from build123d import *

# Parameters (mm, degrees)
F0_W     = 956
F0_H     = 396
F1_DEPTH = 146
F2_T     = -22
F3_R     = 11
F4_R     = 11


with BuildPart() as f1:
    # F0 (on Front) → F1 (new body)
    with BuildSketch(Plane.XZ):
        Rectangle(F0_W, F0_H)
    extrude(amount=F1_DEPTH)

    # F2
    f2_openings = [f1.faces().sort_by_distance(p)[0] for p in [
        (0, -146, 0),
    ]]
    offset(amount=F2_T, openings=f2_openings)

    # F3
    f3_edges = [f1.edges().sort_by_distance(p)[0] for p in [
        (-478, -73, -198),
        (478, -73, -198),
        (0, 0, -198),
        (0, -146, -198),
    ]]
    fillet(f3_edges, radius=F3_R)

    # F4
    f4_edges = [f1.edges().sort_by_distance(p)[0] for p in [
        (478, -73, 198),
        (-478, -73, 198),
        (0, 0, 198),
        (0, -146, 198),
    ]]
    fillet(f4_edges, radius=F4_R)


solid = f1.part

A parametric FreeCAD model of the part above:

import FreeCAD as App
import Part
import Sketcher
Q = App.Units.Quantity


def edges_at(feature, points):
    """Names of the edges that pass closest to the given points."""
    edges = feature.Shape.Edges
    near = lambda p: min(range(len(edges)), key=lambda i: edges[i].distToShape(Part.Vertex(*p))[0])
    return sorted({f"Edge{near(p) + 1}" for p in points})


def faces_at(feature, points):
    """Names of the faces that lie closest to the given points."""
    faces = feature.Shape.Faces
    near = lambda p: min(range(len(faces)), key=lambda i: faces[i].distToShape(Part.Vertex(*p))[0])
    return sorted({f"Face{near(p) + 1}" for p in points})


def add_polygon(sketch, points):
    """Adds a closed chain of lines whose ends are joined by coincident constraints."""
    first, n = sketch.GeometryCount, len(points)
    for a, b in zip(points, points[1:] + points[:1]):
        sketch.addGeometry(Part.LineSegment(App.Vector(*a, 0), App.Vector(*b, 0)), False)
    for i in range(n):
        sketch.addConstraint(Sketcher.Constraint("Coincident", first + i, 2, first + (i + 1) % n, 1))

doc = App.newDocument("Part")
body = doc.addObject("PartDesign::Body", "Body")

# Sketch on XZ plane
sketch1 = body.newObject("Sketcher::SketchObject", "Sketch")
sketch1.AttachmentSupport = (doc.getObject("XZ_Plane"), [""])
sketch1.MapMode = "FlatFace"
add_polygon(sketch1, [(-478, 198), (-478, -198), (478, -198), (478, 198)])  # lines 0-3
sketch1.addConstraint([
    Sketcher.Constraint("Vertical", 0),
    Sketcher.Constraint("Horizontal", 1),
    Sketcher.Constraint("Vertical", 2),
    Sketcher.Constraint("Horizontal", 3),
    Sketcher.Constraint("Symmetric", 0, 2, 2, 2, -1, 1),
    Sketcher.Constraint("DistanceX", 1, 1, 1, 2, Q("956 mm")),
    Sketcher.Constraint("DistanceY", 0, 2, 0, 1, Q("396 mm")),
])
pad1 = body.newObject("PartDesign::Pad", "Pad")
pad1.Profile = sketch1
pad1.Length = 146
doc.recompute()

thickness = body.newObject("PartDesign::Thickness", "Thickness")
thickness.Base = (pad1, faces_at(pad1, [(0, -146, 0)]))
thickness.Value = 22
thickness.Reversed = True
thickness.Join = "Arc"
doc.recompute()

fillet = body.newObject("PartDesign::Fillet", "Fillet")
fillet.Base = (thickness, edges_at(thickness, [
    (-478, -73, -198),
    (478, -73, -198),
    (0, 0, -198),
    (0, -146, -198),
]))
fillet.Radius = 11
doc.recompute()

fillet2 = body.newObject("PartDesign::Fillet", "Fillet001")
fillet2.Base = (fillet, edges_at(fillet, [
    (478, -73, 198),
    (-478, -73, 198),
    (0, 0, 198),
    (0, -146, 198),
]))
fillet2.Radius = 11

doc.recompute()
